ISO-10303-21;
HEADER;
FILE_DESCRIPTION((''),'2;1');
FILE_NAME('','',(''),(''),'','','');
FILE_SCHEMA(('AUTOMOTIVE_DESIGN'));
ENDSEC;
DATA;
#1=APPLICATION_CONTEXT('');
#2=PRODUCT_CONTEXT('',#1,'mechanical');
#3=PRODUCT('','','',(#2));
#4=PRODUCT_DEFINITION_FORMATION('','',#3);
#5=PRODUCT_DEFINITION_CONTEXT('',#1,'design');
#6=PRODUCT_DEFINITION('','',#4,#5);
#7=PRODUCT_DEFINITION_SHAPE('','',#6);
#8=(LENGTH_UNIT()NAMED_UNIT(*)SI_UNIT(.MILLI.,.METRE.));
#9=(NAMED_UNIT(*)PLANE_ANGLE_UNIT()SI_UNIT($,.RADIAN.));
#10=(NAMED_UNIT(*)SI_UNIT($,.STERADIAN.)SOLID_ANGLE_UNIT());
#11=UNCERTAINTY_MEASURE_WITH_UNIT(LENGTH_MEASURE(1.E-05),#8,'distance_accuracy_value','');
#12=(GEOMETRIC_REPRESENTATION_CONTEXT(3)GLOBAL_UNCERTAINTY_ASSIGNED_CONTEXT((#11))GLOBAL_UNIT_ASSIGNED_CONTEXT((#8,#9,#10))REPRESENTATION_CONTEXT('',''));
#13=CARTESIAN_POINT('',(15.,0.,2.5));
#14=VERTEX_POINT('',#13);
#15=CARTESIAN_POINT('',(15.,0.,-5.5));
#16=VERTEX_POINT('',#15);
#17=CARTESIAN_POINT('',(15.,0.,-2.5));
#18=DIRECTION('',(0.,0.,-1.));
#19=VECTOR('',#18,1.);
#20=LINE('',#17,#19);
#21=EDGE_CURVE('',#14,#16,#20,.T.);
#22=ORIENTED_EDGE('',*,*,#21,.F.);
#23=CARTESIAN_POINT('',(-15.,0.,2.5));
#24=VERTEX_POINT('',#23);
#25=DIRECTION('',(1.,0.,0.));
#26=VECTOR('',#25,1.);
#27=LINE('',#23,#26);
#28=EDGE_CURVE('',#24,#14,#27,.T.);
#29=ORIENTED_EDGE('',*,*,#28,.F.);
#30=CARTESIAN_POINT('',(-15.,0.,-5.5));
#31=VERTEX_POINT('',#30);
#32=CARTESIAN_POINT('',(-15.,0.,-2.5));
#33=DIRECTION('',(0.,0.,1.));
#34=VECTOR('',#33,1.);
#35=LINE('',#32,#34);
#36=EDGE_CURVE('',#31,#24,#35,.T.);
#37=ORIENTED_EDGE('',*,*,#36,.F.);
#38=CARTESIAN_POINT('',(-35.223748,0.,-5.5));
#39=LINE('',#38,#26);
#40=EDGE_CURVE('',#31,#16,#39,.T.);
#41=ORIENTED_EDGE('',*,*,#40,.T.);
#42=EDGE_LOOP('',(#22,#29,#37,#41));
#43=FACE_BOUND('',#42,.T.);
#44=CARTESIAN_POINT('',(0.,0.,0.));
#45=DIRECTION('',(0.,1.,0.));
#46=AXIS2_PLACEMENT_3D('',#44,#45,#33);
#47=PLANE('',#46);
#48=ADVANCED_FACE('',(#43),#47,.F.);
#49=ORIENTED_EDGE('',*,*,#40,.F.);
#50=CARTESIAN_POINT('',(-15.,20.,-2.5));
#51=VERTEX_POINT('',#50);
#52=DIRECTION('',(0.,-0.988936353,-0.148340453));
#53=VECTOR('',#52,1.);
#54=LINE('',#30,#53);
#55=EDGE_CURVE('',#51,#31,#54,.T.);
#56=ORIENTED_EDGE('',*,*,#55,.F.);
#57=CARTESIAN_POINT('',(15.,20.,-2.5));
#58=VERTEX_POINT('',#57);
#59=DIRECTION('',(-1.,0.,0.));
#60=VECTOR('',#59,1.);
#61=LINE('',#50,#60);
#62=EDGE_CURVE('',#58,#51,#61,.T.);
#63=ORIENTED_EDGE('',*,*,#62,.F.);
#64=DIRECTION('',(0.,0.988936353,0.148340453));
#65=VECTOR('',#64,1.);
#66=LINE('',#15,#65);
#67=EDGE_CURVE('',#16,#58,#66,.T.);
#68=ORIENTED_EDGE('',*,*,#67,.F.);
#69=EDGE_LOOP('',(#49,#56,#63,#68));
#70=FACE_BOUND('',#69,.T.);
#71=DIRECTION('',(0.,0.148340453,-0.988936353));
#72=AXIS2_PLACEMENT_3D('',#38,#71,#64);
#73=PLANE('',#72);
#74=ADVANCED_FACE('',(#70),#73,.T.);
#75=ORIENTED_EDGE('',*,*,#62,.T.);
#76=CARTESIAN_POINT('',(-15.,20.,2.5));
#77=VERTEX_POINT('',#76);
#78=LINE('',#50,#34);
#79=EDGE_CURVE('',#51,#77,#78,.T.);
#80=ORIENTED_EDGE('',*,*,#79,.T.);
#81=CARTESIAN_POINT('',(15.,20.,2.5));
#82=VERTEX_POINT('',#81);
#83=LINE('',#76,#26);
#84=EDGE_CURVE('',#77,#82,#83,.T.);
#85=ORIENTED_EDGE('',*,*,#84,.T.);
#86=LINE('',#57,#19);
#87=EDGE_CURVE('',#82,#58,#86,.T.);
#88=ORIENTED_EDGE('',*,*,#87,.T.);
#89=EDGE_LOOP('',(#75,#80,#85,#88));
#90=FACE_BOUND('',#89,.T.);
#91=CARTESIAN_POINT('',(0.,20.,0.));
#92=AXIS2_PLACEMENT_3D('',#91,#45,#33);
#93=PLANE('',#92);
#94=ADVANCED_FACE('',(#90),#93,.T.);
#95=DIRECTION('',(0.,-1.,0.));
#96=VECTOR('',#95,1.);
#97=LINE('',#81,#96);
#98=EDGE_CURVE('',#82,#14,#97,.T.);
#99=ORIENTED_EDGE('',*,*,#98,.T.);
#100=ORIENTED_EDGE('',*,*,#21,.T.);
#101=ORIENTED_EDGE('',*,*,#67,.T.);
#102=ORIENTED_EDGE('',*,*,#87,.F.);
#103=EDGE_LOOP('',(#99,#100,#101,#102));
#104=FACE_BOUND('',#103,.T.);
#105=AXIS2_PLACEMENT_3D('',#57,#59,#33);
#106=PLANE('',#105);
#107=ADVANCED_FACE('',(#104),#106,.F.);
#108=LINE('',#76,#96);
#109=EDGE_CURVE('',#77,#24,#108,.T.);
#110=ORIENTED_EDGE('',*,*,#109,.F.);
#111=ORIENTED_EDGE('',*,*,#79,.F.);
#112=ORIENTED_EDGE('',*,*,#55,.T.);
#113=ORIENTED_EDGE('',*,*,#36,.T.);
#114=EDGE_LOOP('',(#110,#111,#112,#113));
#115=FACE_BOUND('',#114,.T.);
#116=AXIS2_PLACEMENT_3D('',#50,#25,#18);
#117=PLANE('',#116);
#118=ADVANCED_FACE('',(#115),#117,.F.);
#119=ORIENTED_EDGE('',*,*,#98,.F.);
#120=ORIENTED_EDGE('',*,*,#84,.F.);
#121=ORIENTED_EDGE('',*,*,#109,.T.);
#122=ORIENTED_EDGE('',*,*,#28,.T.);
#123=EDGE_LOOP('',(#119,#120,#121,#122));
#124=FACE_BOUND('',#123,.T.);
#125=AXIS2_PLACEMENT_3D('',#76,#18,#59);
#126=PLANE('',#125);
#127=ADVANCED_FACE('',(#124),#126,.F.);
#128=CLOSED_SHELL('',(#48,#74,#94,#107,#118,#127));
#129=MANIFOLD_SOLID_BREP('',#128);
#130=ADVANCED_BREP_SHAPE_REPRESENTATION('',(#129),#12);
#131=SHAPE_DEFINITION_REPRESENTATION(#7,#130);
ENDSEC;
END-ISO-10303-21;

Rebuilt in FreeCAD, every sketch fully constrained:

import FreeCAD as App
import Part
import Sketcher

doc = App.newDocument("Part")
body = doc.addObject("PartDesign::Body", "Body")

sketch1 = doc.addObject("Sketcher::SketchObject", "Sketch")
body.addObject(sketch1)
sketch1.AttachmentSupport = (doc.XZ_Plane, [""])
sketch1.MapMode = "FlatFace"
sketch1.addGeometry(Part.LineSegment(App.Vector(-15, -2.5, 0), App.Vector(-15, 2.5, 0)), False)
sketch1.addGeometry(Part.LineSegment(App.Vector(-15, 2.5, 0), App.Vector(15, 2.5, 0)), False)
sketch1.addGeometry(Part.LineSegment(App.Vector(15, 2.5, 0), App.Vector(15, -2.5, 0)), False)
sketch1.addGeometry(Part.LineSegment(App.Vector(15, -2.5, 0), App.Vector(-15, -2.5, 0)), False)
sketch1.addConstraint(Sketcher.Constraint("Coincident", 0, 2, 1, 1))
sketch1.addConstraint(Sketcher.Constraint("Coincident", 1, 2, 2, 1))
sketch1.addConstraint(Sketcher.Constraint("Coincident", 2, 2, 3, 1))
sketch1.addConstraint(Sketcher.Constraint("Coincident", 3, 2, 0, 1))
sketch1.addConstraint(Sketcher.Constraint("Vertical", 0))
sketch1.addConstraint(Sketcher.Constraint("Horizontal", 1))
sketch1.addConstraint(Sketcher.Constraint("Vertical", 2))
sketch1.addConstraint(Sketcher.Constraint("Horizontal", 3))
sketch1.addConstraint(Sketcher.Constraint("Symmetric", 0, 2, 2, 2, -1, 1))
sketch1.addConstraint(Sketcher.Constraint("DistanceX", 1, 1, 1, 2, 30.0))
sketch1.addConstraint(Sketcher.Constraint("DistanceY", 0, 1, 0, 2, 5.0))
pad1 = doc.addObject("PartDesign::Pad", "Pad")
body.addObject(pad1)
pad1.Profile = sketch1
pad1.Length = 20
pad1.Reversed = True

sketch2 = doc.addObject("Sketcher::SketchObject", "Sketch001")
body.addObject(sketch2)
sketch2.AttachmentSupport = (doc.YZ_Plane, [""])
sketch2.MapMode = "FlatFace"
sketch2.AttachmentOffset = App.Placement(App.Vector(0, 0, 15), App.Rotation())
sketch2.addGeometry(Part.LineSegment(App.Vector(0, -2.5, 0), App.Vector(0, -5.5, 0)), False)
sketch2.addGeometry(Part.LineSegment(App.Vector(0, -5.5, 0), App.Vector(20, -2.5, 0)), False)
sketch2.addGeometry(Part.LineSegment(App.Vector(20, -2.5, 0), App.Vector(0, -2.5, 0)), False)
sketch2.addConstraint(Sketcher.Constraint("Coincident", 0, 2, 1, 1))
sketch2.addConstraint(Sketcher.Constraint("Coincident", 1, 2, 2, 1))
sketch2.addConstraint(Sketcher.Constraint("Coincident", 2, 2, 0, 1))
sketch2.addConstraint(Sketcher.Constraint("Vertical", 0))
sketch2.addConstraint(Sketcher.Constraint("Horizontal", 2))
sketch2.addConstraint(Sketcher.Constraint("PointOnObject", 0, 2, -2))
sketch2.addConstraint(Sketcher.Constraint("DistanceX", 2, 2, 2, 1, 20.0))
sketch2.addConstraint(Sketcher.Constraint("DistanceY", 0, 2, 0, 1, 3.0))
sketch2.addConstraint(Sketcher.Constraint("DistanceY", 0, 2, -1, 1, 5.5))
pad2 = doc.addObject("PartDesign::Pad", "Pad001")
body.addObject(pad2)
pad2.Profile = sketch2
pad2.Length = 30
pad2.Reversed = True

doc.recompute()
